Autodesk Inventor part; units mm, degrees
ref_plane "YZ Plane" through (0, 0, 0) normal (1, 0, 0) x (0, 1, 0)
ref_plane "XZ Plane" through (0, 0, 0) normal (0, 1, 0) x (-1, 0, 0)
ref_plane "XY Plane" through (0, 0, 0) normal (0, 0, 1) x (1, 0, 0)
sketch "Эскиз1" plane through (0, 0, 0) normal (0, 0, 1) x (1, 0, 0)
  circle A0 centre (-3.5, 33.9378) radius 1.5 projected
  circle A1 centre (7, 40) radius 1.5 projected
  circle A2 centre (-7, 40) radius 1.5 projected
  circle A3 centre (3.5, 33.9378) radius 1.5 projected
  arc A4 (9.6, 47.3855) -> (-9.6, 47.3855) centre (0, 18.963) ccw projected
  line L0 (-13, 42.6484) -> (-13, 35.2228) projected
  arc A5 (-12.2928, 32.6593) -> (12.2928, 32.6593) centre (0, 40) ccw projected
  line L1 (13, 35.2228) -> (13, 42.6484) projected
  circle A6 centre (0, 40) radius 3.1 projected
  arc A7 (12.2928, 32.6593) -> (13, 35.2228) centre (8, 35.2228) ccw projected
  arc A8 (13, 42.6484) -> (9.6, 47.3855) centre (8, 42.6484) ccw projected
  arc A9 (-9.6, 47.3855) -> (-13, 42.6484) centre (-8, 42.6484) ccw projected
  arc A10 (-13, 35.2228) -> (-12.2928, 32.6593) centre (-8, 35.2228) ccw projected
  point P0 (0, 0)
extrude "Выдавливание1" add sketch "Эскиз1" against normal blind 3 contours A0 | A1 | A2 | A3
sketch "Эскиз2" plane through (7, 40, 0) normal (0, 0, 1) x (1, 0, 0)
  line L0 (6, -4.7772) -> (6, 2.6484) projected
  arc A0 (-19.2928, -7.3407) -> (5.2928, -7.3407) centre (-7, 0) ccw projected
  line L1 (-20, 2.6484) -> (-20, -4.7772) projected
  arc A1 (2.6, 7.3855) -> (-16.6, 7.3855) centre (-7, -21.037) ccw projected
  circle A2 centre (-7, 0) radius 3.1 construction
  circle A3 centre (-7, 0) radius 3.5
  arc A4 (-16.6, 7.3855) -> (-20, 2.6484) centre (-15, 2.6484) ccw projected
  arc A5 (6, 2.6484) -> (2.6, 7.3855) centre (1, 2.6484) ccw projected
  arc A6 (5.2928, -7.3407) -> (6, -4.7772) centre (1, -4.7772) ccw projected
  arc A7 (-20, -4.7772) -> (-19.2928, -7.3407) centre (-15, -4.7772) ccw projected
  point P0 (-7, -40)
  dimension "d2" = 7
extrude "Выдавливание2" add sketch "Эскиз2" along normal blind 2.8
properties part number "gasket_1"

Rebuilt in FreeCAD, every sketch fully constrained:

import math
import FreeCAD as App
import Part
import Sketcher

V = App.Vector
Q = App.Units.Quantity

doc = App.newDocument("Part")
body = doc.addObject("PartDesign::Body", "Body")
body.AllowCompound = True

# Sketch on XY plane
sketch1 = doc.addObject("Sketcher::SketchObject", "Sketch")
body.addObject(sketch1)
sketch1.AttachmentSupport = (doc.XY_Plane, [""])
sketch1.MapMode = "FlatFace"
sketch1.addGeometry([
    Part.Circle(V(-3.5, 33.9, 0), V(0, 0, 1), 1.5),
    Part.Circle(V(7, 40, 0), V(0, 0, 1), 1.5),
    Part.Circle(V(-7, 40, 0), V(0, 0, 1), 1.5),
    Part.Circle(V(3.5, 33.9, 0), V(0, 0, 1), 1.5),
], False)
sketch1.addConstraint([
    Sketcher.Constraint("Equal", 0, 1),
    Sketcher.Constraint("Equal", 1, 2),
    Sketcher.Constraint("Equal", 2, 3),
    Sketcher.Constraint("Symmetric", 1, 3, 2, 3, -2),
    Sketcher.Constraint("Symmetric", 0, 3, 3, 3, -2),
    Sketcher.Constraint("Diameter", 0, Q("3 mm")),
    Sketcher.Constraint("DistanceX", -1, 1, 1, 3, Q("7 mm")),
    Sketcher.Constraint("DistanceY", -1, 1, 1, 3, Q("40 mm")),
    Sketcher.Constraint("DistanceX", 0, 3, 3, 3, Q("7 mm")),
    Sketcher.Constraint("DistanceY", -1, 1, 0, 3, Q("33.9378 mm")),
])
pad1 = doc.addObject("PartDesign::Pad", "Pad")
body.addObject(pad1)
pad1.Profile = sketch1
pad1.Length = 3
pad1.Reversed = True

# Sketch on XY plane
sketch2 = doc.addObject("Sketcher::SketchObject", "Sketch001")
body.addObject(sketch2)
sketch2.AttachmentSupport = (doc.XY_Plane, [""])
sketch2.MapMode = "FlatFace"
sketch2.addGeometry([
    Part.ArcOfCircle(Part.Circle(V(8, 35.2, 0), V(0, 0, 1), 5), math.radians(-31), math.radians(0)),  # 0
    Part.LineSegment(V(13, 35.2, 0), V(13, 42.6, 0)),  # 1
    Part.ArcOfCircle(Part.Circle(V(8, 42.6, 0), V(0, 0, 1), 5), math.radians(0), math.radians(71)),  # 2
    Part.ArcOfCircle(Part.Circle(V(0, 19, 0), V(0, 0, 1), 30), math.radians(71), math.radians(109)),  # 3
    Part.ArcOfCircle(Part.Circle(V(-8, 42.6, 0), V(0, 0, 1), 5), math.radians(109), math.radians(180)),  # 4
    Part.LineSegment(V(-13, 42.6, 0), V(-13, 35.2, 0)),  # 5
    Part.ArcOfCircle(Part.Circle(V(-8, 35.2, 0), V(0, 0, 1), 5), math.radians(180), math.radians(211)),  # 6
    Part.ArcOfCircle(Part.Circle(V(0, 40, 0), V(0, 0, 1), 14.3), math.radians(-149), math.radians(-31)),  # 7
    Part.Circle(V(0, 40, 0), V(0, 0, 1), 3.5),  # 8
], False)
sketch2.addConstraint([
    Sketcher.Constraint("Tangent", 0, 2, 1, 1),
    Sketcher.Constraint("Tangent", 1, 2, 2, 1),
    Sketcher.Constraint("Tangent", 2, 2, 3, 1),
    Sketcher.Constraint("Tangent", 3, 2, 4, 1),
    Sketcher.Constraint("Tangent", 4, 2, 5, 1),
    Sketcher.Constraint("Tangent", 5, 2, 6, 1),
    Sketcher.Constraint("Tangent", 6, 2, 7, 1),
    Sketcher.Constraint("Tangent", 7, 2, 0, 1),
    Sketcher.Constraint("Vertical", 1),
    Sketcher.Constraint("Vertical", 5),
    Sketcher.Constraint("Coincident", 8, 3, 7, 3),
    Sketcher.Constraint("Equal", 0, 2),
    Sketcher.Constraint("Equal", 2, 4),
    Sketcher.Constraint("Equal", 4, 6),
    Sketcher.Constraint("Symmetric", 2, 3, 4, 3, -2),
    Sketcher.Constraint("PointOnObject", 7, 3, -2),
    Sketcher.Constraint("Diameter", 8, Q("7 mm")),
    Sketcher.Constraint("Radius", 0, Q("5 mm")),
    Sketcher.Constraint("Radius", 3, Q("30 mm")),
    Sketcher.Constraint("DistanceX", -1, 1, 0, 3, Q("8 mm")),
    Sketcher.Constraint("DistanceY", -1, 1, 7, 3, Q("40 mm")),
    Sketcher.Constraint("Radius", 7, Q("14.3178 mm")),
    Sketcher.Constraint("DistanceY", 1, 1, 1, 2, Q("7.4256 mm")),
])
pad2 = doc.addObject("PartDesign::Pad", "Pad001")
body.addObject(pad2)
pad2.Profile = sketch2
pad2.Length = 2.8

doc.recompute()
